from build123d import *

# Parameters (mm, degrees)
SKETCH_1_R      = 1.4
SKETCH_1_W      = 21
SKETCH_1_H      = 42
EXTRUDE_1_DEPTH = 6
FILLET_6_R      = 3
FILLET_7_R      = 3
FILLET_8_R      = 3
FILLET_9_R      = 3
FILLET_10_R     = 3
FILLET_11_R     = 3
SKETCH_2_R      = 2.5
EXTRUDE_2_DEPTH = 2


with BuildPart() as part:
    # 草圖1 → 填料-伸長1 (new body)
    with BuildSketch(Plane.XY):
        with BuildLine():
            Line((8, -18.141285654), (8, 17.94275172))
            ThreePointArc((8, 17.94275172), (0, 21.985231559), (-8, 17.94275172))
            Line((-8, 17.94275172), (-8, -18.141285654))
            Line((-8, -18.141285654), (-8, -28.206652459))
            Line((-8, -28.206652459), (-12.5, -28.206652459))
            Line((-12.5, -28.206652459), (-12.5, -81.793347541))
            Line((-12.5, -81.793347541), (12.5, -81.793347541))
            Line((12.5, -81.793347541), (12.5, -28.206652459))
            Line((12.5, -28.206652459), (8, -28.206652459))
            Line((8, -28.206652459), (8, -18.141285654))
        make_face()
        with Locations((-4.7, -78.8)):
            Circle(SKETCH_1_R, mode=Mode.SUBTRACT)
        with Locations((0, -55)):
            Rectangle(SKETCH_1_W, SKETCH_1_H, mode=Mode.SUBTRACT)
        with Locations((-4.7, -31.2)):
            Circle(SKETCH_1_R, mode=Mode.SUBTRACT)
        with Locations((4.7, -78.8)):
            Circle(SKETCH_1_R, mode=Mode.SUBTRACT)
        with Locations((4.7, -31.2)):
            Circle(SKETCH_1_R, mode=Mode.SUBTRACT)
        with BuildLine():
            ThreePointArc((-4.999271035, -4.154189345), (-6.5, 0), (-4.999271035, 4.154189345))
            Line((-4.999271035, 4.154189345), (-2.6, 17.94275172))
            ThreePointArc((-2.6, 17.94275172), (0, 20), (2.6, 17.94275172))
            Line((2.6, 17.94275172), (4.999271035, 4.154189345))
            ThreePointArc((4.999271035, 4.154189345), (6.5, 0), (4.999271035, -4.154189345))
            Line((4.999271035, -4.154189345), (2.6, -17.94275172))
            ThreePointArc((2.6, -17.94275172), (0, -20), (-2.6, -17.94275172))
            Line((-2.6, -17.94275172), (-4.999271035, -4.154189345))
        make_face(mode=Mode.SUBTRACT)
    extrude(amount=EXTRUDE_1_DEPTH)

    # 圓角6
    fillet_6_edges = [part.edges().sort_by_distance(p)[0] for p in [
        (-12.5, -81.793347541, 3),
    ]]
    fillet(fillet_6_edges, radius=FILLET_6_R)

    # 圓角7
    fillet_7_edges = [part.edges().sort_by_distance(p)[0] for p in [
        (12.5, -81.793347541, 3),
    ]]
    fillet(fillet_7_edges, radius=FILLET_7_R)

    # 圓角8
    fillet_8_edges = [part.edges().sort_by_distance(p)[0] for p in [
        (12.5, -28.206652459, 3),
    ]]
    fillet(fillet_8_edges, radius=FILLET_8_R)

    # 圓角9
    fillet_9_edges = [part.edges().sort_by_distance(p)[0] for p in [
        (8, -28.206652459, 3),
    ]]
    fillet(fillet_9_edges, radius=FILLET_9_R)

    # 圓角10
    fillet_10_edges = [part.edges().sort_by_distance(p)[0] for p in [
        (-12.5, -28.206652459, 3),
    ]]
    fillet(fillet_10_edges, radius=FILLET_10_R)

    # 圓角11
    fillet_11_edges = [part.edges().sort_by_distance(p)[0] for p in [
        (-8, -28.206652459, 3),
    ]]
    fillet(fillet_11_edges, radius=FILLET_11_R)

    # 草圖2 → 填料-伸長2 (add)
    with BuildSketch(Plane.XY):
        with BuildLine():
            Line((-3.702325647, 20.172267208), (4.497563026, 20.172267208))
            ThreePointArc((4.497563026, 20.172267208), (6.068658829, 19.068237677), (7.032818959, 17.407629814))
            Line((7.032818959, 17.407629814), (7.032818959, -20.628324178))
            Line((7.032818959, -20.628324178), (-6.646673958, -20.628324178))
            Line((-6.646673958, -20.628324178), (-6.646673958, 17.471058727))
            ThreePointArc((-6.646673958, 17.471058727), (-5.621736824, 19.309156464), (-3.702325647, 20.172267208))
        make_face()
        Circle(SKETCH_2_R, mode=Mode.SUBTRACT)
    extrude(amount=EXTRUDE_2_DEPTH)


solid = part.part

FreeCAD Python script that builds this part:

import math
import FreeCAD as App
import Part
import Sketcher

V = App.Vector
Q = App.Units.Quantity


def edges_at(feature, points):
    """Names of the edges that pass closest to the given points."""
    edges = feature.Shape.Edges
    near = lambda p: min(range(len(edges)), key=lambda i: edges[i].distToShape(Part.Vertex(*p))[0])
    return sorted({f"Edge{near(p) + 1}" for p in points})


def add_polygon(sketch, points):
    """Adds a closed chain of lines whose ends are joined by coincident constraints."""
    first, n = sketch.GeometryCount, len(points)
    for a, b in zip(points, points[1:] + points[:1]):
        sketch.addGeometry(Part.LineSegment(App.Vector(*a, 0), App.Vector(*b, 0)), False)
    for i in range(n):
        sketch.addConstraint(Sketcher.Constraint("Coincident", first + i, 2, first + (i + 1) % n, 1))

doc = App.newDocument("Part")
body = doc.addObject("PartDesign::Body", "Body")

sketch1 = body.newObject("Sketcher::SketchObject", "Sketch")
sketch1.AttachmentSupport = (doc.getObject("XY_Plane"), [""])
sketch1.MapMode = "FlatFace"
sketch1.addGeometry(Part.ArcOfCircle(Part.Circle(V(0, 12, 0), V(0, 0, 1), 9.9), math.radians(36), math.radians(144)), False)
sketch1.addGeometry(Part.LineSegment(V(-8, 17.9, 0), V(-8, -28.2, 0)), False)
sketch1.addGeometry(Part.LineSegment(V(-8, -28.2, 0), V(-12.5, -28.2, 0)), False)
sketch1.addGeometry(Part.LineSegment(V(-12.5, -28.2, 0), V(-12.5, -81.8, 0)), False)
sketch1.addGeometry(Part.LineSegment(V(-12.5, -81.8, 0), V(12.5, -81.8, 0)), False)
sketch1.addGeometry(Part.LineSegment(V(12.5, -81.8, 0), V(12.5, -28.2, 0)), False)
sketch1.addGeometry(Part.LineSegment(V(12.5, -28.2, 0), V(8, -28.2, 0)), False)
sketch1.addGeometry(Part.LineSegment(V(8, -28.2, 0), V(8, 17.9, 0)), False)
sketch1.addGeometry(Part.Circle(V(-4.7, -78.8, 0), V(0, 0, 1), 1.4), False)
sketch1.addGeometry(Part.Circle(V(-4.7, -31.2, 0), V(0, 0, 1), 1.4), False)
sketch1.addGeometry(Part.Circle(V(4.7, -78.8, 0), V(0, 0, 1), 1.4), False)
add_polygon(sketch1, [(10.5, -76), (-10.5, -76), (-10.5, -34), (10.5, -34)])
sketch1.addGeometry(Part.Circle(V(4.7, -31.2, 0), V(0, 0, 1), 1.4), False)
sketch1.addGeometry(Part.LineSegment(V(-2.6, -17.9, 0), V(-5, -4.2, 0)), False)
sketch1.addGeometry(Part.ArcOfCircle(Part.Circle(V(0, 0, 0), V(0, 0, 1), 6.5), math.radians(140), math.radians(220)), False)
sketch1.addGeometry(Part.LineSegment(V(-5, 4.2, 0), V(-2.6, 17.9, 0)), False)
sketch1.addGeometry(Part.ArcOfCircle(Part.Circle(V(0, 17.3, 0), V(0, 0, 1), 2.7), math.radians(13), math.radians(167)), False)
sketch1.addGeometry(Part.LineSegment(V(2.6, 17.9, 0), V(5, 4.2, 0)), False)
sketch1.addGeometry(Part.ArcOfCircle(Part.Circle(V(0, 0, 0), V(0, 0, 1), 6.5), math.radians(-40), math.radians(40)), False)
sketch1.addGeometry(Part.LineSegment(V(5, -4.2, 0), V(2.6, -17.9, 0)), False)
sketch1.addGeometry(Part.ArcOfCircle(Part.Circle(V(0, -17.3, 0), V(0, 0, 1), 2.7), math.radians(-167), math.radians(-13)), False)
sketch1.addConstraint([
    Sketcher.Constraint("Coincident", 0, 2, 1, 1),
    Sketcher.Constraint("Coincident", 1, 2, 2, 1),
    Sketcher.Constraint("Coincident", 2, 2, 3, 1),
    Sketcher.Constraint("Coincident", 3, 2, 4, 1),
    Sketcher.Constraint("Coincident", 4, 2, 5, 1),
    Sketcher.Constraint("Coincident", 5, 2, 6, 1),
    Sketcher.Constraint("Coincident", 6, 2, 7, 1),
    Sketcher.Constraint("Coincident", 7, 2, 0, 1),
    Sketcher.Constraint("Coincident", 16, 2, 17, 2),
    Sketcher.Constraint("Coincident", 17, 1, 18, 1),
    Sketcher.Constraint("Coincident", 18, 2, 19, 2),
    Sketcher.Constraint("Coincident", 19, 1, 20, 1),
    Sketcher.Constraint("Coincident", 20, 2, 21, 2),
    Sketcher.Constraint("Coincident", 21, 1, 22, 1),
    Sketcher.Constraint("Coincident", 22, 2, 23, 2),
    Sketcher.Constraint("Coincident", 23, 1, 16, 1),
    Sketcher.Constraint("Vertical", 1),
    Sketcher.Constraint("Horizontal", 2),
    Sketcher.Constraint("Vertical", 3),
    Sketcher.Constraint("Horizontal", 4),
    Sketcher.Constraint("Vertical", 5),
    Sketcher.Constraint("Horizontal", 6),
    Sketcher.Constraint("Vertical", 7),
    Sketcher.Constraint("Horizontal", 11),
    Sketcher.Constraint("Vertical", 12),
    Sketcher.Constraint("Horizontal", 13),
    Sketcher.Constraint("Vertical", 14),
    Sketcher.Constraint("Coincident", 17, 3, -1, 1),
    Sketcher.Constraint("Coincident", 21, 3, -1, 1),
    Sketcher.Constraint("Equal", 8, 9),
    Sketcher.Constraint("Equal", 9, 10),
    Sketcher.Constraint("Equal", 10, 15),
    Sketcher.Constraint("Equal", 17, 21),
    Sketcher.Constraint("Equal", 19, 23),
    Sketcher.Constraint("Symmetric", 19, 3, 23, 3, -1, 1),
    Sketcher.Constraint("Symmetric", 8, 3, 10, 3, -2),
    Sketcher.Constraint("Symmetric", 9, 3, 15, 3, -2),
    Sketcher.Constraint("Symmetric", 2, 2, 5, 2, -2),
    Sketcher.Constraint("Symmetric", 0, 2, 7, 2, -2),
    Sketcher.Constraint("Symmetric", 18, 2, 19, 1, -2),
    Sketcher.Constraint("Parallel", 16, 20),
    Sketcher.Constraint("Parallel", 18, 22),
    Sketcher.Constraint("Horizontal", 7, 2, 18, 2),
    Sketcher.Constraint("Horizontal", 17, 1, 20, 2),
    Sketcher.Constraint("Horizontal", 16, 2, 21, 1),
    Sketcher.Constraint("Vertical", 8, 3, 9, 3),
    Sketcher.Constraint("Vertical", 16, 2, 17, 1),
    Sketcher.Constraint("Diameter", 8, Q("2.8 mm")),
    Sketcher.Constraint("Radius", 17, Q("6.5 mm")),
    Sketcher.Constraint("DistanceX", 4, 1, 4, 2, Q("25 mm")),
    Sketcher.Constraint("DistanceX", 11, 2, 11, 1, Q("21 mm")),
    Sketcher.Constraint("DistanceY", 12, 1, 12, 2, Q("42 mm")),
    Sketcher.Constraint("DistanceX", 2, 2, 2, 1, Q("4.5 mm")),
    Sketcher.Constraint("DistanceY", 11, 2, -1, 1, Q("76 mm")),
    Sketcher.Constraint("DistanceX", 3, 2, 11, 2, Q("2 mm")),
    Sketcher.Constraint("DistanceX", 8, 3, -1, 1, Q("4.7 mm")),
    Sketcher.Constraint("DistanceY", 8, 3, -1, 1, Q("78.8 mm")),
    Sketcher.Constraint("DistanceY", 9, 3, -1, 1, Q("31.2 mm")),
    Sketcher.Constraint("DistanceX", 18, 2, -1, 1, Q("2.6 mm")),
    Sketcher.Constraint("Radius", 0, Q("9.937173 mm")),
    Sketcher.Constraint("Radius", 19, Q("2.671595 mm")),
    Sketcher.Constraint("DistanceY", 6, 2, 22, 2, Q("10.263901 mm")),
    Sketcher.Constraint("DistanceY", 1, 2, 1, 1, Q("46.149404 mm")),
    Sketcher.Constraint("DistanceY", 3, 2, 3, 1, Q("53.586695 mm")),
    Sketcher.Constraint("DistanceX", 16, 2, -1, 1, Q("4.999271 mm")),
])
pad1 = body.newObject("PartDesign::Pad", "Pad")
pad1.Profile = sketch1
pad1.Length = 6
doc.recompute()

fillet = body.newObject("PartDesign::Fillet", "Fillet")
fillet.Base = (pad1, edges_at(pad1, [(-12.5, -81.793, 3)]))
fillet.Radius = 3
doc.recompute()

fillet2 = body.newObject("PartDesign::Fillet", "Fillet001")
fillet2.Base = (fillet, edges_at(fillet, [(12.5, -81.793, 3)]))
fillet2.Radius = 3
doc.recompute()

fillet3 = body.newObject("PartDesign::Fillet", "Fillet002")
fillet3.Base = (fillet2, edges_at(fillet2, [(12.5, -28.207, 3)]))
fillet3.Radius = 3
doc.recompute()

fillet4 = body.newObject("PartDesign::Fillet", "Fillet003")
fillet4.Base = (fillet3, edges_at(fillet3, [(8, -28.207, 3)]))
fillet4.Radius = 3
doc.recompute()

fillet5 = body.newObject("PartDesign::Fillet", "Fillet004")
fillet5.Base = (fillet4, edges_at(fillet4, [(-12.5, -28.207, 3)]))
fillet5.Radius = 3
doc.recompute()

fillet6 = body.newObject("PartDesign::Fillet", "Fillet005")
fillet6.Base = (fillet5, edges_at(fillet5, [(-8, -28.207, 3)]))
fillet6.Radius = 3

sketch2 = body.newObject("Sketcher::SketchObject", "Sketch001")
sketch2.AttachmentSupport = (doc.getObject("XY_Plane"), [""])
sketch2.MapMode = "FlatFace"
sketch2.addGeometry([
    Part.LineSegment(V(4.5, 20.2, 0), V(-3.7, 20.2, 0)),
    Part.ArcOfCircle(Part.Circle(V(-3.4, 16.8, 0), V(0, 0, 1), 3.3), math.radians(96), math.radians(169)),
    Part.LineSegment(V(-6.6, 17.5, 0), V(-6.6, -20.6, 0)),
    Part.LineSegment(V(-6.6, -20.6, 0), V(7, -20.6, 0)),
    Part.LineSegment(V(7, -20.6, 0), V(7, 17.4, 0)),
    Part.ArcOfCircle(Part.Circle(V(2.8, 16, 0), V(0, 0, 1), 4.5), math.radians(18), math.radians(67)),
    Part.Circle(V(0, 0, 0), V(0, 0, 1), 2.5),
], False)
sketch2.addConstraint([
    Sketcher.Constraint("Coincident", 0, 2, 1, 1),
    Sketcher.Constraint("Coincident", 1, 2, 2, 1),
    Sketcher.Constraint("Coincident", 2, 2, 3, 1),
    Sketcher.Constraint("Coincident", 3, 2, 4, 1),
    Sketcher.Constraint("Coincident", 4, 2, 5, 1),
    Sketcher.Constraint("Coincident", 5, 2, 0, 1),
    Sketcher.Constraint("Horizontal", 0),
    Sketcher.Constraint("Vertical", 2),
    Sketcher.Constraint("Horizontal", 3),
    Sketcher.Constraint("Vertical", 4),
    Sketcher.Constraint("Coincident", 6, 3, -1, 1),
    Sketcher.Constraint("Diameter", 6, Q("5 mm")),
    Sketcher.Constraint("Radius", 1, Q("3.347431 mm")),
    Sketcher.Constraint("Radius", 5, Q("4.477509 mm")),
    Sketcher.Constraint("DistanceX", 0, 2, 0, 1, Q("8.199889 mm")),
    Sketcher.Constraint("DistanceX", 3, 1, 3, 2, Q("13.679493 mm")),
    Sketcher.Constraint("DistanceY", 2, 2, 2, 1, Q("38.099383 mm")),
    Sketcher.Constraint("DistanceY", 4, 1, 4, 2, Q("38.035954 mm")),
    Sketcher.Constraint("DistanceY", -1, 1, 1, 3, Q("16.842512 mm")),
    Sketcher.Constraint("DistanceY", -1, 1, 1, 2, Q("17.471059 mm")),
    Sketcher.Constraint("DistanceX", -1, 1, 3, 2, Q("7.032819 mm")),
    Sketcher.Constraint("DistanceY", 5, 3, 1, 3, Q("0.800489 mm")),
])
pad2 = body.newObject("PartDesign::Pad", "Pad001")
pad2.Profile = sketch2
pad2.Length = 2

doc.recompute()
